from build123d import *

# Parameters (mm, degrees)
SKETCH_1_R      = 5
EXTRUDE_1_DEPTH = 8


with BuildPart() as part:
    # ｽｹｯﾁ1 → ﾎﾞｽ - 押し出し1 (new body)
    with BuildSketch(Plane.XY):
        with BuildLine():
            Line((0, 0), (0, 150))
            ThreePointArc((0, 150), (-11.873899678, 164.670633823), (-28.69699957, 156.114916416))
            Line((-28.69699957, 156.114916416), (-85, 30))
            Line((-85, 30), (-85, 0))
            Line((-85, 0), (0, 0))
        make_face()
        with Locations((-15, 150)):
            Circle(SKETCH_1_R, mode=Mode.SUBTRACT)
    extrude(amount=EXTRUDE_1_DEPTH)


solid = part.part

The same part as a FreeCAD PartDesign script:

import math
import FreeCAD as App
import Part
import Sketcher

V = App.Vector
Q = App.Units.Quantity

doc = App.newDocument("Part")
body = doc.addObject("PartDesign::Body", "Body")

# Sketch on XY plane
sketch1 = body.newObject("Sketcher::SketchObject", "Sketch")
sketch1.AttachmentSupport = (doc.getObject("XY_Plane"), [""])
sketch1.MapMode = "FlatFace"
sketch1.addGeometry(Part.LineSegment(V(0, 0, 0), V(0, 150, 0)), False)
sketch1.addGeometry(Part.ArcOfCircle(Part.Circle(V(-15, 150, 0), V(0, 0, 1), 15), math.radians(0), math.radians(155.942007)), False)
sketch1.addGeometry(Part.LineSegment(V(-28.697, 156.114916, 0), V(-85, 30, 0)), False)
sketch1.addGeometry(Part.LineSegment(V(-85, 30, 0), V(-85, 0, 0)), False)
sketch1.addGeometry(Part.LineSegment(V(-85, 0, 0), V(0, 0, 0)), False)
sketch1.addGeometry(Part.Circle(V(-15, 150, 0), V(0, 0, 1), 5), False)
sketch1.addConstraint(Sketcher.Constraint("Tangent", 0, 2, 1, 1))
sketch1.addConstraint(Sketcher.Constraint("Tangent", 1, 2, 2, 1))
sketch1.addConstraint(Sketcher.Constraint("Coincident", 2, 2, 3, 1))
sketch1.addConstraint(Sketcher.Constraint("Coincident", 3, 2, 4, 1))
sketch1.addConstraint(Sketcher.Constraint("Coincident", 4, 2, 0, 1))
sketch1.addConstraint(Sketcher.Constraint("Vertical", 0))
sketch1.addConstraint(Sketcher.Constraint("Vertical", 3))
sketch1.addConstraint(Sketcher.Constraint("Horizontal", 4))
sketch1.addConstraint(Sketcher.Constraint("Coincident", 4, 2, -1, 1))
sketch1.addConstraint(Sketcher.Constraint("Coincident", 5, 3, 1, 3))
sketch1.addConstraint(Sketcher.Constraint("Diameter", 5, Q("10 mm")))
sketch1.addConstraint(Sketcher.Constraint("Radius", 1, Q("15 mm")))
sketch1.addConstraint(Sketcher.Constraint("DistanceX", 4, 1, 4, 2, Q("85 mm")))
sketch1.addConstraint(Sketcher.Constraint("DistanceY", 0, 1, 0, 2, Q("150 mm")))
sketch1.addConstraint(Sketcher.Constraint("DistanceY", 3, 2, 3, 1, Q("30 mm")))
pad1 = body.newObject("PartDesign::Pad", "Pad")
pad1.Profile = sketch1
pad1.Length = 8

doc.recompute()
